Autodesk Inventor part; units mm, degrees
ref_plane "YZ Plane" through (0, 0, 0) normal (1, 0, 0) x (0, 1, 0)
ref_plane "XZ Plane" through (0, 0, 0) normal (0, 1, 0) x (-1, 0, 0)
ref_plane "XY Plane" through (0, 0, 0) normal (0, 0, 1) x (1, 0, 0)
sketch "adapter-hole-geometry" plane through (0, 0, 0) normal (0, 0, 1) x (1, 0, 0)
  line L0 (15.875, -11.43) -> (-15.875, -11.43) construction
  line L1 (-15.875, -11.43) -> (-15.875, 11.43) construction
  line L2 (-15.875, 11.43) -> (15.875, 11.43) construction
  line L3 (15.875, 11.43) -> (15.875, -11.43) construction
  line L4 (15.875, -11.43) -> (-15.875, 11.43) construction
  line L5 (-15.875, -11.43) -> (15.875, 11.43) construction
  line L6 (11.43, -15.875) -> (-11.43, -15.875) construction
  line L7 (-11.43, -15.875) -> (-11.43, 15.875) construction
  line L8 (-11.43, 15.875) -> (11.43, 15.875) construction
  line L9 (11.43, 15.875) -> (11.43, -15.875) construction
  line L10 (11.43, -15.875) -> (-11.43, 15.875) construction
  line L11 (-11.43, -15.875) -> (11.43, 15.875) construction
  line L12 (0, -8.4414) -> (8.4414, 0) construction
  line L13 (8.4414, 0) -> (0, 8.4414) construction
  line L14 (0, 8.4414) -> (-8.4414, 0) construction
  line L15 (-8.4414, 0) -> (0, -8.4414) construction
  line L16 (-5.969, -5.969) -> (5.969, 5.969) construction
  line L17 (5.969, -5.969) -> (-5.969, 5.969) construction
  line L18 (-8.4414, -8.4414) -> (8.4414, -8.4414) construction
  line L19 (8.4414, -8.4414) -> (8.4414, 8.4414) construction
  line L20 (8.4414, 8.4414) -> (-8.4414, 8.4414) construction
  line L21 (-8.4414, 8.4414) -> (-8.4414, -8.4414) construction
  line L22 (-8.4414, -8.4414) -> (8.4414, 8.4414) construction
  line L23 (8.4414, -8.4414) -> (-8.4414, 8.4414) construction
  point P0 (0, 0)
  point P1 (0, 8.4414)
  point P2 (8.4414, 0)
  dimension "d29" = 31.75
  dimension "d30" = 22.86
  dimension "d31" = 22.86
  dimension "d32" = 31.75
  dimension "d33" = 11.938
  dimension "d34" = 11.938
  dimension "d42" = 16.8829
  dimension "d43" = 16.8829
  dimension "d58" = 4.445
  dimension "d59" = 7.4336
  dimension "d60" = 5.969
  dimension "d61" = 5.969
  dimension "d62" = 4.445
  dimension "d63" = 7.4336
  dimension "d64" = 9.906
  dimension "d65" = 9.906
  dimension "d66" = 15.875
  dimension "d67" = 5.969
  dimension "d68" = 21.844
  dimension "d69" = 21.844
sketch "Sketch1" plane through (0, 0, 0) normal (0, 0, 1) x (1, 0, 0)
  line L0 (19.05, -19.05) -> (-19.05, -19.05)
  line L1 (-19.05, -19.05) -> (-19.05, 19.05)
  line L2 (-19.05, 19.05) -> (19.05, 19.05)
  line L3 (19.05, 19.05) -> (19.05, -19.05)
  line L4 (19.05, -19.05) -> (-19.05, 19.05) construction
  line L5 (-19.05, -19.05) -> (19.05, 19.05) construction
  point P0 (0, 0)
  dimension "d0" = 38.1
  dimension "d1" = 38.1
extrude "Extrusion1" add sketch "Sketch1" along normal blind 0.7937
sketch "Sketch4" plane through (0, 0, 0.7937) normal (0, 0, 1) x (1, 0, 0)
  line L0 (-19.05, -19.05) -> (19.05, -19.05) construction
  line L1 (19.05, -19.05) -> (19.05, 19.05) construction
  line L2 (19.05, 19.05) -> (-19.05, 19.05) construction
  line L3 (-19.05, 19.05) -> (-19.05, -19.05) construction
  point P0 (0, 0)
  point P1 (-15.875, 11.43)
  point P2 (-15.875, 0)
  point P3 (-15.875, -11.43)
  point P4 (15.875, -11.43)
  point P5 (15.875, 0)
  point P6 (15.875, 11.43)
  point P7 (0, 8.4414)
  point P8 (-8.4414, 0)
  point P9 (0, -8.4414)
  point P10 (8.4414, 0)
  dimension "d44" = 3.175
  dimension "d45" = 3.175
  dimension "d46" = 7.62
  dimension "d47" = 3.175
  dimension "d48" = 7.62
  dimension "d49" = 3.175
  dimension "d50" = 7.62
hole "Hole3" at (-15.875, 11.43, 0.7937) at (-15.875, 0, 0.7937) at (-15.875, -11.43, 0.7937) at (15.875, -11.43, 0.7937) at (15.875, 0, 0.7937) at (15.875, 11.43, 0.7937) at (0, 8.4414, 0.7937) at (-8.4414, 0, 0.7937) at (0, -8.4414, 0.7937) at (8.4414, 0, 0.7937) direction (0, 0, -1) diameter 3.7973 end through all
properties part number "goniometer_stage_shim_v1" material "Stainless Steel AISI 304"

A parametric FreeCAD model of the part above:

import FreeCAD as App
import Part
import Sketcher

V = App.Vector
Q = App.Units.Quantity

doc = App.newDocument("Part")
params = doc.addObject("Spreadsheet::Sheet", "Params")
for row, (alias, value) in enumerate([
    ("sketch1_width", "1.5 in"),
    ("pad1_length", "0.031248 in"),
    ("hole_diameter", "0.1495 in"),
], start=1):
    params.set(f"A{row}", alias)
    params.set(f"B{row}", "=" + value)
    params.setAlias(f"B{row}", alias)

body = doc.addObject("PartDesign::Body", "Body")

sketch1 = doc.addObject("Sketcher::SketchObject", "Sketch")
body.addObject(sketch1)
sketch1.AttachmentSupport = (doc.XY_Plane, [""])
sketch1.MapMode = "FlatFace"
sketch1.addGeometry([
    Part.LineSegment(V(-19, -19, 0), V(19, -19, 0)),
    Part.LineSegment(V(19, -19, 0), V(19, 19, 0)),
    Part.LineSegment(V(19, 19, 0), V(-19, 19, 0)),
    Part.LineSegment(V(-19, 19, 0), V(-19, -19, 0)),
], False)
sketch1.addConstraint([
    Sketcher.Constraint("Coincident", 0, 2, 1, 1),
    Sketcher.Constraint("Coincident", 1, 2, 2, 1),
    Sketcher.Constraint("Coincident", 2, 2, 3, 1),
    Sketcher.Constraint("Coincident", 3, 2, 0, 1),
    Sketcher.Constraint("Horizontal", 0),
    Sketcher.Constraint("Vertical", 1),
    Sketcher.Constraint("Horizontal", 2),
    Sketcher.Constraint("Vertical", 3),
    Sketcher.Constraint("Symmetric", 0, 2, 2, 2, -1, 1),
    Sketcher.Constraint("Equal", 2, 1),
    Sketcher.Constraint("DistanceX", 0, 1, 0, 2, Q("1.5 in")),
])
sketch1.setExpression("Constraints[10]", "Params.sketch1_width")
pad1 = doc.addObject("PartDesign::Pad", "Pad")
body.addObject(pad1)
pad1.Profile = sketch1
pad1.setExpression("Length", "Params.pad1_length")

sketch2 = doc.addObject("Sketcher::SketchObject", "Sketch001")
body.addObject(sketch2)
sketch2.AttachmentSupport = (doc.XY_Plane, [""])
sketch2.MapMode = "FlatFace"
sketch2.AttachmentOffset = App.Placement(V(0, 0, 0.031248 * 25.4), App.Rotation())
sketch2.addGeometry([
    Part.Circle(V(-15.9, 11.4, 0), V(0, 0, 1), 1.9),
    Part.Circle(V(-15.9, 0, 0), V(0, 0, 1), 1.9),
    Part.Circle(V(-15.9, -11.4, 0), V(0, 0, 1), 1.9),
    Part.Circle(V(15.9, -11.4, 0), V(0, 0, 1), 1.9),
    Part.Circle(V(15.9, 0, 0), V(0, 0, 1), 1.9),
    Part.Circle(V(15.9, 11.4, 0), V(0, 0, 1), 1.9),
    Part.Circle(V(0, 8.4, 0), V(0, 0, 1), 1.9),
    Part.Circle(V(-8.4, 0, 0), V(0, 0, 1), 1.9),
    Part.Circle(V(0, -8.4, 0), V(0, 0, 1), 1.9),
    Part.Circle(V(8.4, 0, 0), V(0, 0, 1), 1.9),
], False)
sketch2.addConstraint([
    Sketcher.Constraint("Equal", 0, 1),
    Sketcher.Constraint("Equal", 1, 2),
    Sketcher.Constraint("Equal", 2, 3),
    Sketcher.Constraint("Equal", 3, 4),
    Sketcher.Constraint("Equal", 4, 5),
    Sketcher.Constraint("Equal", 5, 6),
    Sketcher.Constraint("Equal", 6, 7),
    Sketcher.Constraint("Equal", 7, 8),
    Sketcher.Constraint("Equal", 8, 9),
    Sketcher.Constraint("Symmetric", 0, 3, 3, 3, -1, 1),
    Sketcher.Constraint("Symmetric", 1, 3, 4, 3, -1, 1),
    Sketcher.Constraint("Symmetric", 2, 3, 5, 3, -1, 1),
    Sketcher.Constraint("Symmetric", 6, 3, 8, 3, -1, 1),
    Sketcher.Constraint("Symmetric", 7, 3, 9, 3, -1, 1),
    Sketcher.Constraint("Symmetric", 2, 3, 3, 3, -2),
    Sketcher.Constraint("PointOnObject", 1, 3, -1),
    Sketcher.Constraint("PointOnObject", 6, 3, -2),
    Sketcher.Constraint("PointOnObject", 7, 3, -1),
    Sketcher.Constraint("Vertical", 0, 3, 1, 3),
    Sketcher.Constraint("Diameter", 0, Q("0.1495 in")),
    Sketcher.Constraint("DistanceY", 2, 3, 0, 3, Q("0.9 in")),
    Sketcher.Constraint("DistanceX", 2, 3, 3, 3, Q("1.25 in")),
    Sketcher.Constraint("DistanceY", -1, 1, 6, 3, 8.4414),
    Sketcher.Constraint("DistanceX", 7, 3, -1, 1, 8.4414),
])
doc.recompute()
hole = doc.addObject("PartDesign::Hole", "Hole")
body.addObject(hole)
hole.Profile = sketch2
hole.ThreadType = "None"
hole.setExpression("Diameter", "Params.hole_diameter")
hole.DepthType = "ThroughAll"

doc.recompute()
